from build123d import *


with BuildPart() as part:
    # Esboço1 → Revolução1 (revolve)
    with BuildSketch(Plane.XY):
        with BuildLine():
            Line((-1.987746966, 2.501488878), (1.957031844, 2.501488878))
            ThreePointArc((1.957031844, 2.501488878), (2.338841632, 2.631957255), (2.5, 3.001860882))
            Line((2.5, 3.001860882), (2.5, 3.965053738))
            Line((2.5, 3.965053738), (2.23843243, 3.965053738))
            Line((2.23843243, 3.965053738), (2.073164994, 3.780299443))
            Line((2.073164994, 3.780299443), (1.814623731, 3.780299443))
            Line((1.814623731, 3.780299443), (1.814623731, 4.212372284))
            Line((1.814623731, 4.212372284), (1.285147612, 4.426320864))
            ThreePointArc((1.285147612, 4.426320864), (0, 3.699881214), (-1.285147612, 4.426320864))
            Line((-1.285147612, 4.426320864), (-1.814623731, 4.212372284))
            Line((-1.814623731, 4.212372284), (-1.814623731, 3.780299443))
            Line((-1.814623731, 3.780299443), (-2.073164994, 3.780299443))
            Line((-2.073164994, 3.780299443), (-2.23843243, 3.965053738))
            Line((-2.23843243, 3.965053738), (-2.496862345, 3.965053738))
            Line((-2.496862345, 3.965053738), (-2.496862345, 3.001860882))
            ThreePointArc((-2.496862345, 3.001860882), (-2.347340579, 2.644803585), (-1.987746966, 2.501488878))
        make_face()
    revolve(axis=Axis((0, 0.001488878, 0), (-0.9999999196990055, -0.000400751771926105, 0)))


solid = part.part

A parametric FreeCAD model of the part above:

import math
import FreeCAD as App
import Part
import Sketcher

doc = App.newDocument("Part")
body = doc.addObject("PartDesign::Body", "Body")

sketch1 = body.newObject("Sketcher::SketchObject", "Sketch")
sketch1.AttachmentSupport = (doc.getObject("XY_Plane"), [""])
sketch1.MapMode = "FlatFace"
sketch1.addGeometry([
    Part.LineSegment(App.Vector(-1.99, 2.5, 0), App.Vector(1.96, 2.5, 0)),
    Part.ArcOfCircle(Part.Circle(App.Vector(2, 3, 0), App.Vector(0, 0, 1), 0.5), math.radians(-95), math.radians(0)),
    Part.LineSegment(App.Vector(2.5, 3, 0), App.Vector(2.5, 3.97, 0)),
    Part.LineSegment(App.Vector(2.5, 3.97, 0), App.Vector(2.24, 3.97, 0)),
    Part.LineSegment(App.Vector(2.24, 3.97, 0), App.Vector(2.07, 3.78, 0)),
    Part.LineSegment(App.Vector(2.07, 3.78, 0), App.Vector(1.81, 3.78, 0)),
    Part.LineSegment(App.Vector(1.81, 3.78, 0), App.Vector(1.81, 4.21, 0)),
    Part.LineSegment(App.Vector(1.81, 4.21, 0), App.Vector(1.29, 4.43, 0)),
    Part.ArcOfCircle(Part.Circle(App.Vector(0, 5.2, 0), App.Vector(0, 0, 1), 1.5), math.radians(-149), math.radians(-31)),
    Part.LineSegment(App.Vector(-1.29, 4.43, 0), App.Vector(-1.81, 4.21, 0)),
    Part.LineSegment(App.Vector(-1.81, 4.21, 0), App.Vector(-1.81, 3.78, 0)),
    Part.LineSegment(App.Vector(-1.81, 3.78, 0), App.Vector(-2.07, 3.78, 0)),
    Part.LineSegment(App.Vector(-2.07, 3.78, 0), App.Vector(-2.24, 3.97, 0)),
    Part.LineSegment(App.Vector(-2.24, 3.97, 0), App.Vector(-2.5, 3.97, 0)),
    Part.LineSegment(App.Vector(-2.5, 3.97, 0), App.Vector(-2.5, 3, 0)),
    Part.ArcOfCircle(Part.Circle(App.Vector(-2, 3, 0), App.Vector(0, 0, 1), 0.5), math.radians(180), math.radians(271)),
], False)
sketch1.addGeometry(Part.LineSegment(App.Vector(2.5, 0, 0), App.Vector(-2.5, 0, 0)), True)
sketch1.addConstraint([
    Sketcher.Constraint("Coincident", 0, 2, 1, 1),
    Sketcher.Constraint("Coincident", 1, 2, 2, 1),
    Sketcher.Constraint("Coincident", 2, 2, 3, 1),
    Sketcher.Constraint("Coincident", 3, 2, 4, 1),
    Sketcher.Constraint("Coincident", 4, 2, 5, 1),
    Sketcher.Constraint("Coincident", 5, 2, 6, 1),
    Sketcher.Constraint("Coincident", 6, 2, 7, 1),
    Sketcher.Constraint("Coincident", 7, 2, 8, 2),
    Sketcher.Constraint("Coincident", 8, 1, 9, 1),
    Sketcher.Constraint("Coincident", 9, 2, 10, 1),
    Sketcher.Constraint("Coincident", 10, 2, 11, 1),
    Sketcher.Constraint("Coincident", 11, 2, 12, 1),
    Sketcher.Constraint("Coincident", 12, 2, 13, 1),
    Sketcher.Constraint("Coincident", 13, 2, 14, 1),
    Sketcher.Constraint("Coincident", 14, 2, 15, 1),
    Sketcher.Constraint("Coincident", 15, 2, 0, 1),
    Sketcher.Constraint("Horizontal", 0),
    Sketcher.Constraint("Vertical", 2),
    Sketcher.Constraint("Horizontal", 3),
    Sketcher.Constraint("Horizontal", 5),
    Sketcher.Constraint("Vertical", 6),
    Sketcher.Constraint("Vertical", 10),
    Sketcher.Constraint("Horizontal", 11),
    Sketcher.Constraint("Horizontal", 13),
    Sketcher.Constraint("Vertical", 14),
    Sketcher.Constraint("Equal", 1, 15),
    Sketcher.Constraint("Symmetric", 7, 2, 8, 1, -2),
    Sketcher.Constraint("Symmetric", 6, 2, 9, 2, -2),
    Sketcher.Constraint("Symmetric", 4, 2, 11, 2, -2),
    Sketcher.Constraint("Symmetric", 3, 2, 12, 2, -2),
    Sketcher.Constraint("Horizontal", 1, 2, 14, 2),
    Sketcher.Constraint("Radius", 1, 0.5),
    Sketcher.Constraint("Radius", 8, 1.5),
    Sketcher.Constraint("DistanceX", -1, 1, 1, 2, 2.5),
    Sketcher.Constraint("DistanceY", 16, 2, 15, 2, 2.501),
    Sketcher.Constraint("DistanceX", 0, 1, 0, 2, 3.944779),
    Sketcher.Constraint("DistanceX", 5, 2, 5, 1, 0.258541),
    Sketcher.Constraint("DistanceX", 13, 2, 13, 1, 0.25843),
    Sketcher.Constraint("DistanceY", -1, 1, 4, 2, 3.780299),
    Sketcher.Constraint("DistanceX", 0, 2, 3, 2, 0.281401),
    Sketcher.Constraint("Distance", 7, 0.571068),
    Sketcher.Constraint("DistanceX", 3, 2, 3, 1, 0.261568),
    Sketcher.Constraint("DistanceY", 2, 1, 2, 2, 0.963193),
    Sketcher.Constraint("DistanceY", 6, 1, 6, 2, 0.432073),
    Sketcher.Constraint("DistanceY", -1, 1, 1, 3, 2.999639),
    Sketcher.Constraint("DistanceY", -1, 1, 8, 3, 5.199881),
    Sketcher.Constraint("DistanceY", -1, 1, 1, 2, 3.001861),
    Sketcher.Constraint("DistanceY", -1, 1, 7, 2, 4.426321),
    Sketcher.Constraint("DistanceX", -1, 1, 16, 1, 2.501588),
    Sketcher.Constraint("DistanceY", -1, 1, 16, 1, 0.002491),
    Sketcher.Constraint("DistanceX", 16, 2, -1, 1, 2.49566),
])
revolution = body.newObject("PartDesign::Revolution", "Revolution")
revolution.Profile = sketch1
revolution.ReferenceAxis = (sketch1, ["Axis0"])
revolution.Angle = 360

doc.recompute()
